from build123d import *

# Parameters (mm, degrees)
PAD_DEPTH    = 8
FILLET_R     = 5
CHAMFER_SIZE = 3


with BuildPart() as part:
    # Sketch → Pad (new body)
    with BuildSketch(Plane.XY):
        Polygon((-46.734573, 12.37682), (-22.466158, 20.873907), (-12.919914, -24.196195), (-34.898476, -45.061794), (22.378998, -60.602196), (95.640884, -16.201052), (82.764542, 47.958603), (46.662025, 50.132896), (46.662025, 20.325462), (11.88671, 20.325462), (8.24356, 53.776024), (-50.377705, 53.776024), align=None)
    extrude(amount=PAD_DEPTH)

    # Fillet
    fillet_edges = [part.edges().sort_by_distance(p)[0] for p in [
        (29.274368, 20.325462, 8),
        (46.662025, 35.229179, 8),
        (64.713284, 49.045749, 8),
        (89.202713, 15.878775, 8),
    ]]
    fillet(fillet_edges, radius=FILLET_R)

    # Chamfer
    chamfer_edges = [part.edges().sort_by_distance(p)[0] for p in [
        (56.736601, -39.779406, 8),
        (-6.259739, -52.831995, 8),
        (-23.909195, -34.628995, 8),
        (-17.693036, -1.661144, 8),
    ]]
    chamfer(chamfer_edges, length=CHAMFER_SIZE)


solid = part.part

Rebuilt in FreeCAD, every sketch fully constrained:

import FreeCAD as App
import Part
import Sketcher
from FreeCAD import Vector
Q = App.Units.Quantity


def edges_at(feature, points):
    """Names of the edges that pass closest to the given points."""
    edges = feature.Shape.Edges
    near = lambda p: min(range(len(edges)), key=lambda i: edges[i].distToShape(Part.Vertex(*p))[0])
    return sorted({f"Edge{near(p) + 1}" for p in points})


def add_polygon(sketch, points):
    """Adds a closed chain of lines whose ends are joined by coincident constraints."""
    first, n = sketch.GeometryCount, len(points)
    for a, b in zip(points, points[1:] + points[:1]):
        sketch.addGeometry(Part.LineSegment(App.Vector(*a, 0), App.Vector(*b, 0)), False)
    for i in range(n):
        sketch.addConstraint(Sketcher.Constraint("Coincident", first + i, 2, first + (i + 1) % n, 1))

doc = App.newDocument("Part")
body = doc.addObject("PartDesign::Body", "Body")

# Sketch on XY plane
sketch1 = doc.addObject("Sketcher::SketchObject", "Sketch")
body.addObject(sketch1)
sketch1.AttachmentSupport = (doc.XY_Plane, [""])
sketch1.MapMode = "FlatFace"
add_polygon(sketch1, [(-47, 12), (-22, 21), (-13, -24), (-35, -45), (22, -61), (96, -16), (83, 48), (47, 50), (47, 20), (12, 20), (8, 54), (-50, 54)])  # lines 0-11
sketch1.addConstraint(Sketcher.Constraint("Vertical", 7))
sketch1.addConstraint(Sketcher.Constraint("Horizontal", 8))
sketch1.addConstraint(Sketcher.Constraint("Horizontal", 10))
sketch1.addConstraint(Sketcher.Constraint("Distance", 1, Q("46.07 mm")))
sketch1.addConstraint(Sketcher.Constraint("DistanceY", 3, 2, 1, 2, Q("36.406001 mm")))
sketch1.addConstraint(Sketcher.Constraint("DistanceY", 2, 2, 1, 2, Q("20.865599 mm")))
sketch1.addConstraint(Sketcher.Constraint("DistanceY", 2, 2, 0, 2, Q("65.935701 mm")))
sketch1.addConstraint(Sketcher.Constraint("DistanceX", 1, 2, 4, 2, Q("108.560798 mm")))
sketch1.addConstraint(Sketcher.Constraint("DistanceX", 0, 2, 5, 2, Q("105.2307 mm")))
sketch1.addConstraint(Sketcher.Constraint("DistanceY", 1, 2, 5, 2, Q("72.154798 mm")))
sketch1.addConstraint(Sketcher.Constraint("Distance", 5, Q("65.438991 mm")))
sketch1.addConstraint(Sketcher.Constraint("Distance", 6, Q("36.167932 mm")))
sketch1.addConstraint(Sketcher.Constraint("DistanceX", 8, 2, 8, 1, Q("34.775315 mm")))
sketch1.addConstraint(Sketcher.Constraint("DistanceX", 10, 2, 10, 1, Q("58.621265 mm")))
sketch1.addConstraint(Sketcher.Constraint("DistanceY", 7, 2, 7, 1, Q("29.807434 mm")))
sketch1.addConstraint(Sketcher.Constraint("DistanceX", 0, 2, -1, 1, Q("22.466158 mm")))
sketch1.addConstraint(Sketcher.Constraint("DistanceX", -1, 1, 8, 2, Q("11.88671 mm")))
sketch1.addConstraint(Sketcher.Constraint("DistanceX", -1, 1, 9, 2, Q("8.24356 mm")))
sketch1.addConstraint(Sketcher.Constraint("DistanceY", -1, 1, 11, 2, Q("12.37682 mm")))
sketch1.addConstraint(Sketcher.Constraint("DistanceX", 2, 2, 0, 2, Q("12.432318 mm")))
sketch1.addConstraint(Sketcher.Constraint("DistanceY", 8, 2, 9, 2, Q("33.450562 mm")))
sketch1.addConstraint(Sketcher.Constraint("DistanceX", 11, 2, 1, 2, Q("33.814659 mm")))
sketch1.addConstraint(Sketcher.Constraint("Distance", 0, Q("25.712963 mm")))
sketch1.addConstraint(Sketcher.Constraint("Distance", 3, Q("59.348236 mm")))
pad1 = doc.addObject("PartDesign::Pad", "Pad")
body.addObject(pad1)
pad1.Profile = sketch1
pad1.Length = 8
doc.recompute()

fillet = doc.addObject("PartDesign::Fillet", "Fillet")
body.addObject(fillet)
fillet.Base = (pad1, edges_at(pad1, [
    (29.274, 20.325, 8),
    (46.662, 35.229, 8),
    (64.713, 49.046, 8),
    (89.203, 15.879, 8),
]))
fillet.Radius = 5
doc.recompute()

chamfer = doc.addObject("PartDesign::Chamfer", "Chamfer")
body.addObject(chamfer)
chamfer.Base = (fillet, edges_at(fillet, [
    (56.737, -39.779, 8),
    (-6.26, -52.832, 8),
    (-23.909, -34.629, 8),
    (-17.693, -1.661, 8),
]))
chamfer.Size = 3

doc.recompute()
